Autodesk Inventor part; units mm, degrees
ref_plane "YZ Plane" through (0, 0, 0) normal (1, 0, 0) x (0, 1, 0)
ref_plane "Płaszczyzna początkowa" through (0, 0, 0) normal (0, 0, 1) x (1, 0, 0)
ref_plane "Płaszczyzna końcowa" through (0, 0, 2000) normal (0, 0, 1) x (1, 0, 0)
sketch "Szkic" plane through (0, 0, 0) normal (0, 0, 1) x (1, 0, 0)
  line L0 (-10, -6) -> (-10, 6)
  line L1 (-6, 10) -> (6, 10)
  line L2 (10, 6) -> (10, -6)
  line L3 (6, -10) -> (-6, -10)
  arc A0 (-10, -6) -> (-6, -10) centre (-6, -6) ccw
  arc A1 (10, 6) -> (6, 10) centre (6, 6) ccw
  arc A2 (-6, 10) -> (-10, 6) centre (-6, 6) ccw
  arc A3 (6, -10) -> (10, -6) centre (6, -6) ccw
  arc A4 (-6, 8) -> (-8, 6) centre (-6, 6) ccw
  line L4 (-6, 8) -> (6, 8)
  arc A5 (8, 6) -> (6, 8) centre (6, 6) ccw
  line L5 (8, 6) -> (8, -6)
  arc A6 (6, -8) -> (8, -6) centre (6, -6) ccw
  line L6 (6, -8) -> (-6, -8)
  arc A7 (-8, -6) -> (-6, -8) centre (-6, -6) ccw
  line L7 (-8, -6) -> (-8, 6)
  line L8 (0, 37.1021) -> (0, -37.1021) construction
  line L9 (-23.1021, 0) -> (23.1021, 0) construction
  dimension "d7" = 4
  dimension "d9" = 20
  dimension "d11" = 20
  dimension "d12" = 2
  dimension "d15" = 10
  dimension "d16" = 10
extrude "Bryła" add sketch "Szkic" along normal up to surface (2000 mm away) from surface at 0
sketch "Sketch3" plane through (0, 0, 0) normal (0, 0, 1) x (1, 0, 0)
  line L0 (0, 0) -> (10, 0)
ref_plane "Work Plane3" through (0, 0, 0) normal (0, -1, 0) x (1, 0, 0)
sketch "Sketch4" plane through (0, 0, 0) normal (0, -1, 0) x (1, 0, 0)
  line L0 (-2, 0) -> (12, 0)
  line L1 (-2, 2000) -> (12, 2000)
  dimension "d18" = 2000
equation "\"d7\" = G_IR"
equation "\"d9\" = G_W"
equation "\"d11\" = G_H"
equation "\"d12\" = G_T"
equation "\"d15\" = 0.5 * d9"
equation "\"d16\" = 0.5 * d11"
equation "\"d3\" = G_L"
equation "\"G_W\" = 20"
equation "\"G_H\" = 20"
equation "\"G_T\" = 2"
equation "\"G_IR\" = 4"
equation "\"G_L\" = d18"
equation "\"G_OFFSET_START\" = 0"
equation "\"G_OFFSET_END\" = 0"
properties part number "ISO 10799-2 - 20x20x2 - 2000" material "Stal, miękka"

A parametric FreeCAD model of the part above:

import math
import FreeCAD as App
import Part
import Sketcher

V = App.Vector

doc = App.newDocument("Part")
body = doc.addObject("PartDesign::Body", "Body")

# Sketch on XY plane
sketch1 = body.newObject("Sketcher::SketchObject", "Sketch")
sketch1.AttachmentSupport = (doc.getObject("XY_Plane"), [""])
sketch1.MapMode = "FlatFace"
sketch1.addGeometry([
    Part.LineSegment(V(-10, 6, 0), V(-10, -6, 0)),  # 0
    Part.ArcOfCircle(Part.Circle(V(-6, -6, 0), V(0, 0, 1), 4), math.radians(180), math.radians(270)),  # 1
    Part.LineSegment(V(-6, -10, 0), V(6, -10, 0)),  # 2
    Part.ArcOfCircle(Part.Circle(V(6, -6, 0), V(0, 0, 1), 4), math.radians(-90), math.radians(0)),  # 3
    Part.LineSegment(V(10, -6, 0), V(10, 6, 0)),  # 4
    Part.ArcOfCircle(Part.Circle(V(6, 6, 0), V(0, 0, 1), 4), math.radians(0), math.radians(90)),  # 5
    Part.LineSegment(V(6, 10, 0), V(-6, 10, 0)),  # 6
    Part.ArcOfCircle(Part.Circle(V(-6, 6, 0), V(0, 0, 1), 4), math.radians(90), math.radians(180)),  # 7
    Part.ArcOfCircle(Part.Circle(V(-6, 6, 0), V(0, 0, 1), 2), math.radians(90), math.radians(180)),  # 8
    Part.LineSegment(V(-6, 8, 0), V(6, 8, 0)),  # 9
    Part.ArcOfCircle(Part.Circle(V(6, 6, 0), V(0, 0, 1), 2), math.radians(0), math.radians(90)),  # 10
    Part.LineSegment(V(8, 6, 0), V(8, -6, 0)),  # 11
    Part.ArcOfCircle(Part.Circle(V(6, -6, 0), V(0, 0, 1), 2), math.radians(-90), math.radians(0)),  # 12
    Part.LineSegment(V(6, -8, 0), V(-6, -8, 0)),  # 13
    Part.ArcOfCircle(Part.Circle(V(-6, -6, 0), V(0, 0, 1), 2), math.radians(180), math.radians(270)),  # 14
    Part.LineSegment(V(-8, -6, 0), V(-8, 6, 0)),  # 15
], False)
sketch1.addConstraint([
    Sketcher.Constraint("Tangent", 0, 2, 1, 1),
    Sketcher.Constraint("Tangent", 1, 2, 2, 1),
    Sketcher.Constraint("Tangent", 2, 2, 3, 1),
    Sketcher.Constraint("Tangent", 3, 2, 4, 1),
    Sketcher.Constraint("Tangent", 4, 2, 5, 1),
    Sketcher.Constraint("Tangent", 5, 2, 6, 1),
    Sketcher.Constraint("Tangent", 6, 2, 7, 1),
    Sketcher.Constraint("Tangent", 7, 2, 0, 1),
    Sketcher.Constraint("Tangent", 8, 1, 9, 1),
    Sketcher.Constraint("Tangent", 9, 2, 10, 2),
    Sketcher.Constraint("Tangent", 10, 1, 11, 1),
    Sketcher.Constraint("Tangent", 11, 2, 12, 2),
    Sketcher.Constraint("Tangent", 12, 1, 13, 1),
    Sketcher.Constraint("Tangent", 13, 2, 14, 2),
    Sketcher.Constraint("Tangent", 14, 1, 15, 1),
    Sketcher.Constraint("Tangent", 15, 2, 8, 2),
    Sketcher.Constraint("Vertical", 0),
    Sketcher.Constraint("Horizontal", 2),
    Sketcher.Constraint("Vertical", 4),
    Sketcher.Constraint("Horizontal", 6),
    Sketcher.Constraint("Horizontal", 9),
    Sketcher.Constraint("Vertical", 11),
    Sketcher.Constraint("Horizontal", 13),
    Sketcher.Constraint("Vertical", 15),
    Sketcher.Constraint("Coincident", 8, 3, 7, 3),
    Sketcher.Constraint("Coincident", 10, 3, 5, 3),
    Sketcher.Constraint("Coincident", 12, 3, 3, 3),
    Sketcher.Constraint("Equal", 1, 3),
    Sketcher.Constraint("Equal", 3, 5),
    Sketcher.Constraint("Equal", 5, 7),
    Sketcher.Constraint("Equal", 12, 14),
    Sketcher.Constraint("Symmetric", 1, 3, 5, 3, -1, 1),
    Sketcher.Constraint("Equal", 13, 0),
    Sketcher.Constraint("Radius", 1, 4.0),
    Sketcher.Constraint("Radius", 8, 2.0),
    Sketcher.Constraint("DistanceX", 0, 2, -1, 1, 10.0),
])
pad1 = body.newObject("PartDesign::Pad", "Pad")
pad1.Profile = sketch1
pad1.Length = 2000

doc.recompute()
